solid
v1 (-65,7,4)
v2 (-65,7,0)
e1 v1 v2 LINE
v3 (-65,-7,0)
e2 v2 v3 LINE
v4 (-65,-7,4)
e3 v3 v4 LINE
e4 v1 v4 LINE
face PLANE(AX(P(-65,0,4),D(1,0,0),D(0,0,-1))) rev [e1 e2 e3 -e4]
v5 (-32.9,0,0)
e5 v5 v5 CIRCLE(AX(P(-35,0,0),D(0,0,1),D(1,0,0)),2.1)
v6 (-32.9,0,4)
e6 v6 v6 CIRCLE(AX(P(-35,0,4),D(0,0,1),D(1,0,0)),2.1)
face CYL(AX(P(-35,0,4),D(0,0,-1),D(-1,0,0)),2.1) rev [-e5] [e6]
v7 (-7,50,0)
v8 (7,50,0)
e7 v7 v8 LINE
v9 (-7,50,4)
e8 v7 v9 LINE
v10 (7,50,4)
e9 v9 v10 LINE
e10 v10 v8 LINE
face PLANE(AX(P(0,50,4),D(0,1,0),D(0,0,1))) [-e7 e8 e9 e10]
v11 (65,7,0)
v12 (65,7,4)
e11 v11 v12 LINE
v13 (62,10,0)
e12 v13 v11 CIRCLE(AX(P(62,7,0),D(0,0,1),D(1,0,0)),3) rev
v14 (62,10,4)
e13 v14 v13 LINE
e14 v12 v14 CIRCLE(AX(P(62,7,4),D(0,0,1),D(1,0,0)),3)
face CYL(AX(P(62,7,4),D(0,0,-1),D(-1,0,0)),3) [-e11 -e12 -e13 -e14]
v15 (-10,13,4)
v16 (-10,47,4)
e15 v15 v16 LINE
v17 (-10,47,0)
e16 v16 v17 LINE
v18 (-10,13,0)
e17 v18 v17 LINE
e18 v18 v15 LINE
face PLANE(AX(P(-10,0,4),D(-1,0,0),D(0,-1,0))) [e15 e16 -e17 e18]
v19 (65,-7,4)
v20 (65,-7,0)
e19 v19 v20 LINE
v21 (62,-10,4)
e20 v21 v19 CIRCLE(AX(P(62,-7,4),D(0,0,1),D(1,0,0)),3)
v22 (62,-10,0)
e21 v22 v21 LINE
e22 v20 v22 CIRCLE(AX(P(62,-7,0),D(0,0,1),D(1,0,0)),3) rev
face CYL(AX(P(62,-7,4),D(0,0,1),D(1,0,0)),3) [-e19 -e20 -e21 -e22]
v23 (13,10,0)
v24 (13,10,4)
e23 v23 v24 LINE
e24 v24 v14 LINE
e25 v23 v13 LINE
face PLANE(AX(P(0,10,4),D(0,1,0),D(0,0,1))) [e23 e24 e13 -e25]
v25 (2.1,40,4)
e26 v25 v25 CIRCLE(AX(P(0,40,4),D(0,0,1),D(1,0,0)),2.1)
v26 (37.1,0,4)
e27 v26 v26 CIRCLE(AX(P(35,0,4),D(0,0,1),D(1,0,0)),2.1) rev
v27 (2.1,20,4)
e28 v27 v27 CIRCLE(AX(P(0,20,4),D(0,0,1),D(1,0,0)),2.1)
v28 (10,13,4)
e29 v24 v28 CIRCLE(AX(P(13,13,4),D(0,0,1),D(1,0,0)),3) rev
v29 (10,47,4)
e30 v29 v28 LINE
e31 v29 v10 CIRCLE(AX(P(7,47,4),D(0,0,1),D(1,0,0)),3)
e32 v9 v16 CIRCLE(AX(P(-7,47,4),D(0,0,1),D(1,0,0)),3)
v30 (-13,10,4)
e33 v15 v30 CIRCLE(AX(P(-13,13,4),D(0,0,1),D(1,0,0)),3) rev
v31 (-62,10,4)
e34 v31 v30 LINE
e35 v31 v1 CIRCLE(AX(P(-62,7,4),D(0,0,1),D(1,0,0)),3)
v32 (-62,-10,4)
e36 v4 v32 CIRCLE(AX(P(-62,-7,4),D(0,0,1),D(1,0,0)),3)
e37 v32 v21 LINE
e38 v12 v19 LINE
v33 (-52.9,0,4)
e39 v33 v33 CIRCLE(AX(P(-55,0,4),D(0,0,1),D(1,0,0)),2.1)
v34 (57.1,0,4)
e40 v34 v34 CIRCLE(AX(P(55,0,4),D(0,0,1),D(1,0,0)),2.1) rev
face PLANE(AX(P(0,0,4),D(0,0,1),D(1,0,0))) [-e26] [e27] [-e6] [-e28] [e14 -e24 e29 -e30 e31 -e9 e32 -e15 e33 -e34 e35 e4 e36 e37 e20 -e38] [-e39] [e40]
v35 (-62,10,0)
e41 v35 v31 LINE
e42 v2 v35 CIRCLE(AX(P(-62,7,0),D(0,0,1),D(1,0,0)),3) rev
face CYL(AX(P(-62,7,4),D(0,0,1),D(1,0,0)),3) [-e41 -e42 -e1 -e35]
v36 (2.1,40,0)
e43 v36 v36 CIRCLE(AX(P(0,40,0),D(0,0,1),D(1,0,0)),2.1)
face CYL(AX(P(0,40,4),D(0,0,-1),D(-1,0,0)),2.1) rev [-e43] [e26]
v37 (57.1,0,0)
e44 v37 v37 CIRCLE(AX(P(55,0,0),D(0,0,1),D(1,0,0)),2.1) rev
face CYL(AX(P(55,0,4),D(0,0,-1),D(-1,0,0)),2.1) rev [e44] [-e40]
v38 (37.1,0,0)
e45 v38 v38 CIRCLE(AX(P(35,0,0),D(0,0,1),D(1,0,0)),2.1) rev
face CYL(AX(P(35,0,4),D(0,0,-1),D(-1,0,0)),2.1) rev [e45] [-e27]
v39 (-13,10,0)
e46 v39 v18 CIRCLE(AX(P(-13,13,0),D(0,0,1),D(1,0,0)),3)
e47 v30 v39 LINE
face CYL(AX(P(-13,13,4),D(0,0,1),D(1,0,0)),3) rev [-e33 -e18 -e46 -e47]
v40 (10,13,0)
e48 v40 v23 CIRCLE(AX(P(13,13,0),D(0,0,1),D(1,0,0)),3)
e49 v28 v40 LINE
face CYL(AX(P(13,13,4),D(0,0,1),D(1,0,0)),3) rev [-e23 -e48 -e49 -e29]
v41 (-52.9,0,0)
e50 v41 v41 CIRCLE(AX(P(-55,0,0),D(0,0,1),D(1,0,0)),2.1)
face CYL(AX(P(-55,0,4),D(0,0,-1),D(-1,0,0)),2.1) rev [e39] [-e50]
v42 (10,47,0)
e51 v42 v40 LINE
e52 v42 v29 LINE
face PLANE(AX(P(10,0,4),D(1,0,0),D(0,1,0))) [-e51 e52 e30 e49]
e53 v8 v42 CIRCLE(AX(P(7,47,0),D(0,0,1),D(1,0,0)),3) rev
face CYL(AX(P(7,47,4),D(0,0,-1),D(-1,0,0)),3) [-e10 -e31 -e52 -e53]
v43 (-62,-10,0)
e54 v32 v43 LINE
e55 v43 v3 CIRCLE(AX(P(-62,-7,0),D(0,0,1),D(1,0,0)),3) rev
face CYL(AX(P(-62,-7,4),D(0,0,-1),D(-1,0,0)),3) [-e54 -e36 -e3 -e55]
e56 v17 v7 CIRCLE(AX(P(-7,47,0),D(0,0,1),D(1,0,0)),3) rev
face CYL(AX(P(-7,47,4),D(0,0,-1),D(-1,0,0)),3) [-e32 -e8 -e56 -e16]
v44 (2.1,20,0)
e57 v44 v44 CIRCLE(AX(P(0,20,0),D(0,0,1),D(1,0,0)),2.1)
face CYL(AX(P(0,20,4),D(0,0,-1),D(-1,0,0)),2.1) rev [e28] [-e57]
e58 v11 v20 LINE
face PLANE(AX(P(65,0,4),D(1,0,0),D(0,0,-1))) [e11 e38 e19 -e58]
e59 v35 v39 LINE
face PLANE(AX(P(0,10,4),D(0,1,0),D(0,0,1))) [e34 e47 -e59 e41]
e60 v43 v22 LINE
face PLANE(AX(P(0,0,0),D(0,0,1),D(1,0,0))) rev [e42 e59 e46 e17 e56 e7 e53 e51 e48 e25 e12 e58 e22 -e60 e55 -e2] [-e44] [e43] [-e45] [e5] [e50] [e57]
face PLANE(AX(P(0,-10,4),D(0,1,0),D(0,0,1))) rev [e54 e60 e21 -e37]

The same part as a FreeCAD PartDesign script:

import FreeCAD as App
import Part
import Sketcher

V = App.Vector
Q = App.Units.Quantity


def edges_at(feature, points):
    """Names of the edges that pass closest to the given points."""
    edges = feature.Shape.Edges
    near = lambda p: min(range(len(edges)), key=lambda i: edges[i].distToShape(Part.Vertex(*p))[0])
    return sorted({f"Edge{near(p) + 1}" for p in points})


def add_polygon(sketch, points):
    """Adds a closed chain of lines whose ends are joined by coincident constraints."""
    first, n = sketch.GeometryCount, len(points)
    for a, b in zip(points, points[1:] + points[:1]):
        sketch.addGeometry(Part.LineSegment(App.Vector(*a, 0), App.Vector(*b, 0)), False)
    for i in range(n):
        sketch.addConstraint(Sketcher.Constraint("Coincident", first + i, 2, first + (i + 1) % n, 1))

doc = App.newDocument("Part")
params = doc.addObject("Spreadsheet::Sheet", "Params")
for row, (alias, value) in enumerate([
    ("sketch1_diameter", "4.2 mm"),
    ("sketch1_width", "130 mm"),
    ("sketch1_width2", "55 mm"),
    ("sketch1_height", "40 mm"),
    ("pad1_length", "4 mm"),
    ("fillet_radius", "3 mm"),
], start=1):
    params.set(f"A{row}", alias)
    params.set(f"B{row}", "=" + value)
    params.setAlias(f"B{row}", alias)

body = doc.addObject("PartDesign::Body", "Body")

# Sketch on XY plane
sketch1 = body.newObject("Sketcher::SketchObject", "Sketch")
sketch1.AttachmentSupport = (doc.getObject("XY_Plane"), [""])
sketch1.MapMode = "FlatFace"
add_polygon(sketch1, [(-65, 10), (-65, -10), (65, -10), (65, 10), (10, 10), (10, 50), (-10, 50), (-10, 10)])  # lines 0-7
sketch1.addGeometry(Part.Circle(V(-55, 0, 0), V(0, 0, 1), 2.1), False)  # 8
sketch1.addGeometry(Part.Circle(V(-35, 0, 0), V(0, 0, 1), 2.1), False)  # 9
sketch1.addGeometry(Part.Circle(V(35, 0, 0), V(0, 0, 1), 2.1), False)  # 10
sketch1.addGeometry(Part.Circle(V(55, 0, 0), V(0, 0, 1), 2.1), False)  # 11
sketch1.addGeometry(Part.Circle(V(0, 40, 0), V(0, 0, 1), 2.1), False)  # 12
sketch1.addGeometry(Part.Circle(V(0, 20, 0), V(0, 0, 1), 2.1), False)  # 13
sketch1.addConstraint([
    Sketcher.Constraint("Vertical", 0),
    Sketcher.Constraint("Horizontal", 1),
    Sketcher.Constraint("Vertical", 2),
    Sketcher.Constraint("Horizontal", 3),
    Sketcher.Constraint("Vertical", 4),
    Sketcher.Constraint("Horizontal", 5),
    Sketcher.Constraint("Vertical", 6),
    Sketcher.Constraint("Horizontal", 7),
    Sketcher.Constraint("Equal", 8, 9),
    Sketcher.Constraint("Equal", 9, 10),
    Sketcher.Constraint("Equal", 10, 11),
    Sketcher.Constraint("Equal", 11, 12),
    Sketcher.Constraint("Equal", 12, 13),
    Sketcher.Constraint("Symmetric", 9, 3, 10, 3, -1, 1),
    Sketcher.Constraint("Symmetric", 8, 3, 11, 3, -1, 1),
    Sketcher.Constraint("Symmetric", 0, 2, 2, 2, -1, 1),
    Sketcher.Constraint("Symmetric", 3, 2, 6, 2, -2),
    Sketcher.Constraint("PointOnObject", 8, 3, -1),
    Sketcher.Constraint("PointOnObject", 9, 3, -1),
    Sketcher.Constraint("PointOnObject", 12, 3, -2),
    Sketcher.Constraint("PointOnObject", 13, 3, -2),
    Sketcher.Constraint("Equal", 5, 0),
    Sketcher.Constraint("Diameter", 8, Q("4.2 mm")),
    Sketcher.Constraint("DistanceX", 1, 1, 1, 2, Q("130 mm")),
    Sketcher.Constraint("DistanceX", 3, 2, 3, 1, Q("55 mm")),
    Sketcher.Constraint("DistanceY", 4, 1, 4, 2, Q("40 mm")),
    Sketcher.Constraint("DistanceX", 8, 3, -1, 1, Q("55 mm")),
    Sketcher.Constraint("DistanceX", 9, 3, -1, 1, Q("35 mm")),
    Sketcher.Constraint("DistanceY", -1, 1, 12, 3, Q("40 mm")),
    Sketcher.Constraint("DistanceY", -1, 1, 13, 3, Q("20 mm")),
])
sketch1.setExpression("Constraints[30]", "Params.sketch1_diameter")
sketch1.setExpression("Constraints[31]", "Params.sketch1_width")
sketch1.setExpression("Constraints[32]", "Params.sketch1_width2")
sketch1.setExpression("Constraints[33]", "Params.sketch1_height")
pad1 = body.newObject("PartDesign::Pad", "Pad")
pad1.Profile = sketch1
pad1.setExpression("Length", "Params.pad1_length")
doc.recompute()

fillet = body.newObject("PartDesign::Fillet", "Fillet")
fillet.Base = (pad1, edges_at(pad1, [
    (65, -10, 2),
    (-65, -10, 2),
    (-65, 10, 2),
    (-10, 10, 2),
    (-10, 50, 2),
    (10, 50, 2),
    (10, 10, 2),
    (65, 10, 2),
]))
fillet.setExpression("Radius", "Params.fillet_radius")

doc.recompute()
